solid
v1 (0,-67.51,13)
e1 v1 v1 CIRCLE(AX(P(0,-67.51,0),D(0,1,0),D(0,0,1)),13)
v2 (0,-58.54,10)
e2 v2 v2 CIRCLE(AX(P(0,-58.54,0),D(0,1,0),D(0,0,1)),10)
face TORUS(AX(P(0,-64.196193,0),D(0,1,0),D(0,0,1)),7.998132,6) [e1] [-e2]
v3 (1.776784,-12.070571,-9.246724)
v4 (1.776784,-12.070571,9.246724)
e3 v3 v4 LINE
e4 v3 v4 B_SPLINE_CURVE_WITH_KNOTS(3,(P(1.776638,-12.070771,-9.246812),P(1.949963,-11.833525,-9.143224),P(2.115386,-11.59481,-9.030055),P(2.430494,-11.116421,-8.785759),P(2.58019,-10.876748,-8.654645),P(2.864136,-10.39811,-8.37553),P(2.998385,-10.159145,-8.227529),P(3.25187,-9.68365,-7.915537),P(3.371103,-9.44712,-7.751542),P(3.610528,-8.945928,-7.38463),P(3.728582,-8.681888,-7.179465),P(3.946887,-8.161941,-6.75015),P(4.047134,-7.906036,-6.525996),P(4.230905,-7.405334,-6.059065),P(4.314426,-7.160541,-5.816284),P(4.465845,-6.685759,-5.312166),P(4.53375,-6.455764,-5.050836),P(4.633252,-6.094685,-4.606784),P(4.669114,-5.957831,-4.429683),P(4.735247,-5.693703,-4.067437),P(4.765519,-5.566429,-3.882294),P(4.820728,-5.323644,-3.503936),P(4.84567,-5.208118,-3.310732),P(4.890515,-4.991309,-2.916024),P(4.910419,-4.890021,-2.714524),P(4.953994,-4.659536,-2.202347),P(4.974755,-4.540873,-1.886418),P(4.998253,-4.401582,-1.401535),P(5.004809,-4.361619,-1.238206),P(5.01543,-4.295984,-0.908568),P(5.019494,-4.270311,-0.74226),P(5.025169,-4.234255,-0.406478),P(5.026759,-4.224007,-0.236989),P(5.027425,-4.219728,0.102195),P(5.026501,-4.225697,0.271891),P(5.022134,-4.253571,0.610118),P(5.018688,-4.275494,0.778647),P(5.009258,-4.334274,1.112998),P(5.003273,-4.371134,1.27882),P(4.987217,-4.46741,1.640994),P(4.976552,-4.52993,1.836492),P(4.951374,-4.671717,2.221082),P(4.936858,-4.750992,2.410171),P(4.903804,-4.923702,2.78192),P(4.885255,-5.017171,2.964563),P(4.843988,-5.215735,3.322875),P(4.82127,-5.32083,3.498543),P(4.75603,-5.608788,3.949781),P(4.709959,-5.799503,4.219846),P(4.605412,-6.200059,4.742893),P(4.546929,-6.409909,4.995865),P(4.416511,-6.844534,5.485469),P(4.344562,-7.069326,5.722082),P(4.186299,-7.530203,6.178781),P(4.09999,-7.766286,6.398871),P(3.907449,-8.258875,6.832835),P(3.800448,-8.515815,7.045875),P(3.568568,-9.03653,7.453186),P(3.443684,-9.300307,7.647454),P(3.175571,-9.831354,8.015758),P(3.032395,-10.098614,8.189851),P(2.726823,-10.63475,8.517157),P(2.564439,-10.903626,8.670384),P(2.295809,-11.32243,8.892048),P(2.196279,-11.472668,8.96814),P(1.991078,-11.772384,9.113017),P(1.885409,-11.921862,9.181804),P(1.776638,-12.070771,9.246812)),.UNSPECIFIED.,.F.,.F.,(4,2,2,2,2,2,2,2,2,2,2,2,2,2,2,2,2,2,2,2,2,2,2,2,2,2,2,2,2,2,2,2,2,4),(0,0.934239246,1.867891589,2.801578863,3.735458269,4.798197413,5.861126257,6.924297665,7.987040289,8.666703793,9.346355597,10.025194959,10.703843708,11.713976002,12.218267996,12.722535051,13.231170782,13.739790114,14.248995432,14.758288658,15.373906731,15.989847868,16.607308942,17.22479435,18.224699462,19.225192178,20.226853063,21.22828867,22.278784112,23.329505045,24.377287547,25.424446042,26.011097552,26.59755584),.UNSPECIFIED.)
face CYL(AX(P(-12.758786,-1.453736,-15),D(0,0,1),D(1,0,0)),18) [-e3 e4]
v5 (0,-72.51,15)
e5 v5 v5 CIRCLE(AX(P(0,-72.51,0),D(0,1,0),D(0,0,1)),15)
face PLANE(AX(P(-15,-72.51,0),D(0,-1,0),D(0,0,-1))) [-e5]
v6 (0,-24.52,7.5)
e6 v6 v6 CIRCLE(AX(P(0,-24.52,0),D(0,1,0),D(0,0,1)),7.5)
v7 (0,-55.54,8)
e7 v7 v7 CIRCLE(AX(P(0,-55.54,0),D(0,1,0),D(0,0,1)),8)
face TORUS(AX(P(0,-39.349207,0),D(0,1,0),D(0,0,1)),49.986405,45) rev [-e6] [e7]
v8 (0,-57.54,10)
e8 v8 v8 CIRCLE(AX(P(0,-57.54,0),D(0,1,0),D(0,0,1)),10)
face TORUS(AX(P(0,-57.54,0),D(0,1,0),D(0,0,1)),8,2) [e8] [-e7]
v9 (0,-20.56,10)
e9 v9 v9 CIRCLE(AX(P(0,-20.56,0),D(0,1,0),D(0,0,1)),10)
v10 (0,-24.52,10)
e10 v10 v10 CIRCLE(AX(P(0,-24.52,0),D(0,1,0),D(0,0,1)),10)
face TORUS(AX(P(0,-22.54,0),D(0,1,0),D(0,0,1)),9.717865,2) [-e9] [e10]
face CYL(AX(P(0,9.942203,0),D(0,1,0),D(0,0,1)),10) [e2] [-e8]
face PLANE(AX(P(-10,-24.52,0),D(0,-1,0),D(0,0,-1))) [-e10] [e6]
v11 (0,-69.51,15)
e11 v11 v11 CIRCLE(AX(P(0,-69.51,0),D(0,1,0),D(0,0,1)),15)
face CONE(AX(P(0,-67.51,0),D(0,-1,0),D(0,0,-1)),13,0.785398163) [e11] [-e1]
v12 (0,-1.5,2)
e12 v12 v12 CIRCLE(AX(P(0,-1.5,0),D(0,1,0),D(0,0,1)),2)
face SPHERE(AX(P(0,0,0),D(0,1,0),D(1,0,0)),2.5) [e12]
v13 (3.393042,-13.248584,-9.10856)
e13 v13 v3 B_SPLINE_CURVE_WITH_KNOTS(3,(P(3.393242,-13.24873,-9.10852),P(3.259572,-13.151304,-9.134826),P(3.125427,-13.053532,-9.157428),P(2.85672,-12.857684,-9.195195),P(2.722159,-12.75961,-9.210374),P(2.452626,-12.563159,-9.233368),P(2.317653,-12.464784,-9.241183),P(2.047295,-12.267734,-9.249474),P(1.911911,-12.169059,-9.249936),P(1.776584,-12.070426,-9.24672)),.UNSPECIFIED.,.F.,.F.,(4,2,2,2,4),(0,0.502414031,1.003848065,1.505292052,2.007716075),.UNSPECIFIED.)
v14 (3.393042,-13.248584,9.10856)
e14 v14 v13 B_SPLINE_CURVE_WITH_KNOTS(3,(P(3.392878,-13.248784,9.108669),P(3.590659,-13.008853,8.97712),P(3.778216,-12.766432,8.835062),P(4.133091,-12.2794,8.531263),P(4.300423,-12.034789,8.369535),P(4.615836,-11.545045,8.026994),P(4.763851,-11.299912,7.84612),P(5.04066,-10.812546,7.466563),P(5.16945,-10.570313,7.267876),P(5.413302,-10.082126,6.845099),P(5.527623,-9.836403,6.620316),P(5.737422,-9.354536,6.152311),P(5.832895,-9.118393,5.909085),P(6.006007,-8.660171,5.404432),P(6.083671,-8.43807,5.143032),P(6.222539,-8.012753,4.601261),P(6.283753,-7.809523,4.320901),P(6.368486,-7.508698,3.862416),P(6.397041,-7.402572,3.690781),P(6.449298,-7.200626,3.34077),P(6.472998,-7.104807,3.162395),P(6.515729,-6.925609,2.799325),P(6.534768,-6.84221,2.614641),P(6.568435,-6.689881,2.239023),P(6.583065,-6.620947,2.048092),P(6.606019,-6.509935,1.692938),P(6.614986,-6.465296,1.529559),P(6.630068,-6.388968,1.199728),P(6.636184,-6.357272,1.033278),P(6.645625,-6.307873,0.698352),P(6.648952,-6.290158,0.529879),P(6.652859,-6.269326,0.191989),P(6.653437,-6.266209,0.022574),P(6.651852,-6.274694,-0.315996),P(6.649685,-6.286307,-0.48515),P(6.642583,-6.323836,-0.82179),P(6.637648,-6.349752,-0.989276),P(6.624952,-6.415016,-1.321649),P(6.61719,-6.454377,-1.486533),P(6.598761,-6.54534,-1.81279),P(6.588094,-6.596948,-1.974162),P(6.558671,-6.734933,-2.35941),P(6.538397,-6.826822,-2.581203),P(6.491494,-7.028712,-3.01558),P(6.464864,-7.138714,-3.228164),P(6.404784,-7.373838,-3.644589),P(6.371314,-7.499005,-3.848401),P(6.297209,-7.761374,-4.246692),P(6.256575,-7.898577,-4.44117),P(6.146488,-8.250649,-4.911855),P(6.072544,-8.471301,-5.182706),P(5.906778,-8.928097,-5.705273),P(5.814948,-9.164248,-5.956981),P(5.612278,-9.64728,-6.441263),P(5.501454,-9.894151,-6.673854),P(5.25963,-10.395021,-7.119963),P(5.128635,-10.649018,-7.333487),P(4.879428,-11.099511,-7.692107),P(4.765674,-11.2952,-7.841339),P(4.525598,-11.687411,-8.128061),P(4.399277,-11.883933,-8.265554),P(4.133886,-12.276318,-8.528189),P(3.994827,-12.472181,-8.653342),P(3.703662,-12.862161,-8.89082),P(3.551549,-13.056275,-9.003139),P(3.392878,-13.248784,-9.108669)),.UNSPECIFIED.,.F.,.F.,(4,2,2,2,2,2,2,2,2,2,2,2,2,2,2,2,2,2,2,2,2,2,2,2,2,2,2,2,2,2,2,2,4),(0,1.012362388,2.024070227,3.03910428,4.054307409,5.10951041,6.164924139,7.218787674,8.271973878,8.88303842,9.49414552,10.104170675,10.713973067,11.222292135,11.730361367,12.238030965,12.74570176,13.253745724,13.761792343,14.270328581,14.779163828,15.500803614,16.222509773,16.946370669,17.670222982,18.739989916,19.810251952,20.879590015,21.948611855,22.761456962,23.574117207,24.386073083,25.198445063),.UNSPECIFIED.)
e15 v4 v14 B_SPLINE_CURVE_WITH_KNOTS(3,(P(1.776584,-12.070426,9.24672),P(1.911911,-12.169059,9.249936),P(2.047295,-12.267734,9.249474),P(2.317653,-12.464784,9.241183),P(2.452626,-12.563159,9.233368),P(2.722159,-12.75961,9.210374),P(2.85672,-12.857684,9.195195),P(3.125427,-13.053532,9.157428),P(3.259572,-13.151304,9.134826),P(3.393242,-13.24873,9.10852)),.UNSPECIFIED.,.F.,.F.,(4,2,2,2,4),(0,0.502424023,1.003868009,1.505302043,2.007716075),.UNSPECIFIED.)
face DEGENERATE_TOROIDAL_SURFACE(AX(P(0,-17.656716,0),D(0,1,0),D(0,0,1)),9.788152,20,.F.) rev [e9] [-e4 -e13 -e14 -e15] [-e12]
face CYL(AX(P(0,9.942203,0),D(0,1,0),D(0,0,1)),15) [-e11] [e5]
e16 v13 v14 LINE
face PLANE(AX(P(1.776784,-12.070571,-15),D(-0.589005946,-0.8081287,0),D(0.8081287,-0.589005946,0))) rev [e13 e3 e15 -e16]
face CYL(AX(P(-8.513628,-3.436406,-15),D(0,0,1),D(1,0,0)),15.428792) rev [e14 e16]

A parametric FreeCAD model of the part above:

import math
import FreeCAD as App
import Part
import Sketcher

V = App.Vector
Q = App.Units.Quantity

doc = App.newDocument("Part")
body = doc.addObject("PartDesign::Body", "Body")

sketch1 = doc.addObject("Sketcher::SketchObject", "Sketch")
body.addObject(sketch1)
sketch1.AttachmentSupport = (doc.XY_Plane, [""])
sketch1.MapMode = "FlatFace"
sketch1.addGeometry([
    Part.LineSegment(V(-15, -72.5, 0), V(0, -72.5, 0)),
    Part.LineSegment(V(0, -72.5, 0), V(0, 2.5, 0)),
    Part.ArcOfCircle(Part.Circle(V(0, 0, 0), V(0, 0, 1), 2.5), math.radians(90), math.radians(217)),
    Part.ArcOfCircle(Part.Circle(V(9.8, -17.7, 0), V(0, 0, 1), 20), math.radians(126), math.radians(188)),
    Part.ArcOfCircle(Part.Circle(V(-9.7, -22.5, 0), V(0, 0, 1), 2), math.radians(98), math.radians(262)),
    Part.LineSegment(V(-10, -24.5, 0), V(-7.5, -24.5, 0)),
    Part.ArcOfCircle(Part.Circle(V(-50, -39.3, 0), V(0, 0, 1), 45), math.radians(-21), math.radians(19)),
    Part.ArcOfCircle(Part.Circle(V(-8, -57.5, 0), V(0, 0, 1), 2), math.radians(90), math.radians(180)),
    Part.LineSegment(V(-10, -57.5, 0), V(-10, -58.5, 0)),
    Part.ArcOfCircle(Part.Circle(V(-8, -64.2, 0), V(0, 0, 1), 6), math.radians(109), math.radians(214)),
    Part.LineSegment(V(-13, -67.5, 0), V(-15, -69.5, 0)),
    Part.LineSegment(V(-15, -69.5, 0), V(-15, -72.5, 0)),
], False)
sketch1.addConstraint([
    Sketcher.Constraint("Coincident", 0, 2, 1, 1),
    Sketcher.Constraint("Coincident", 1, 2, 2, 1),
    Sketcher.Constraint("Coincident", 2, 2, 3, 1),
    Sketcher.Constraint("Coincident", 3, 2, 4, 1),
    Sketcher.Constraint("Coincident", 4, 2, 5, 1),
    Sketcher.Constraint("Coincident", 5, 2, 6, 2),
    Sketcher.Constraint("Coincident", 6, 1, 7, 1),
    Sketcher.Constraint("Tangent", 7, 2, 8, 1),
    Sketcher.Constraint("Coincident", 8, 2, 9, 1),
    Sketcher.Constraint("Coincident", 9, 2, 10, 1),
    Sketcher.Constraint("Coincident", 10, 2, 11, 1),
    Sketcher.Constraint("Coincident", 11, 2, 0, 1),
    Sketcher.Constraint("Horizontal", 0),
    Sketcher.Constraint("Vertical", 1),
    Sketcher.Constraint("Horizontal", 5),
    Sketcher.Constraint("Vertical", 8),
    Sketcher.Constraint("Vertical", 11),
    Sketcher.Constraint("Coincident", 2, 3, -1, 1),
    Sketcher.Constraint("Equal", 4, 7),
    Sketcher.Constraint("PointOnObject", 0, 2, -2),
    Sketcher.Constraint("Vertical", 3, 2, 4, 2),
    Sketcher.Constraint("Vertical", 7, 3, 6, 1),
    Sketcher.Constraint("Vertical", 4, 2, 7, 2),
    Sketcher.Constraint("Radius", 3, 20.0),
    Sketcher.Constraint("Radius", 4, 2.0),
    Sketcher.Constraint("Radius", 6, 45.0),
    Sketcher.Constraint("Radius", 9, 6.0),
    Sketcher.Constraint("Radius", 2, 2.5),
    Sketcher.Constraint("DistanceX", 0, 1, 0, 2, 15.0),
    Sketcher.Constraint("DistanceY", 8, 2, 8, 1, 1.0),
    Sketcher.Constraint("DistanceY", 11, 2, 11, 1, 3.0),
    Sketcher.Constraint("Angle", 10, Q("-135 deg")),
    Sketcher.Constraint("DistanceX", 5, 1, 5, 2, 2.5),
    Sketcher.Constraint("DistanceX", 7, 3, -1, 1, 8.0),
    Sketcher.Constraint("DistanceX", 2, 2, -1, 1, 2.0),
    Sketcher.Constraint("DistanceX", 9, 2, -1, 1, 13.0),
    Sketcher.Constraint("DistanceY", 7, 3, 4, 3, 35.0),
    Sketcher.Constraint("DistanceY", 1, 1, 1, 2, 75.01),
    Sketcher.Constraint("DistanceY", 4, 3, -1, 1, 22.54),
    Sketcher.Constraint("DistanceY", 3, 2, -1, 1, 20.56),
])
revolution = doc.addObject("PartDesign::Revolution", "Revolution")
body.addObject(revolution)
revolution.Profile = sketch1
revolution.ReferenceAxis = (sketch1, ["V_Axis"])
revolution.Angle = 360

sketch2 = doc.addObject("Sketcher::SketchObject", "Sketch001")
body.addObject(sketch2)
sketch2.AttachmentSupport = (doc.XY_Plane, [""])
sketch2.MapMode = "FlatFace"
sketch2.addGeometry([
    Part.LineSegment(V(1.8, -12.1, 0), V(3.4, -13.2, 0)),
    Part.ArcOfCircle(Part.Circle(V(-8.5, -3.4, 0), V(0, 0, 1), 15.4), math.radians(-39), math.radians(-11)),
    Part.ArcOfCircle(Part.Circle(V(-9.8, -17.7, 0), V(0, 0, 1), 20), math.radians(34.71), math.radians(42.2)),
    Part.ArcOfCircle(Part.Circle(V(-12.8, -1.5, 0), V(0, 0, 1), 18), math.radians(-36), math.radians(-9)),
], False)
sketch2.addConstraint([
    Sketcher.Constraint("Coincident", 0, 2, 1, 1),
    Sketcher.Constraint("Coincident", 1, 2, 2, 1),
    Sketcher.Constraint("Coincident", 2, 2, 3, 2),
    Sketcher.Constraint("Coincident", 3, 1, 0, 1),
    Sketcher.Constraint("Radius", 2, 20.0),
    Sketcher.Constraint("Radius", 3, 18.0),
    Sketcher.Constraint("Distance", 0, 2.000001),
    Sketcher.Constraint("Radius", 1, 15.428792),
    Sketcher.Constraint("DistanceX", 2, 3, -1, 1, 9.788151),
    Sketcher.Constraint("DistanceX", -1, 1, 1, 2, 6.652988),
    Sketcher.Constraint("DistanceY", 1, 2, -1, 1, 6.268612),
    Sketcher.Constraint("DistanceX", -1, 1, 2, 2, 5.027158),
    Sketcher.Constraint("DistanceY", 3, 1, -1, 1, 12.070571),
    Sketcher.Constraint("DistanceY", 2, 3, 1, 3, 14.22031),
    Sketcher.Constraint("DistanceY", 1, 3, 3, 3, 1.98267),
])
pocket1 = doc.addObject("PartDesign::Pocket", "Pocket")
body.addObject(pocket1)
pocket1.Profile = sketch2
pocket1.Type = "ThroughAll"
pocket1.Midplane = True

doc.recompute()
